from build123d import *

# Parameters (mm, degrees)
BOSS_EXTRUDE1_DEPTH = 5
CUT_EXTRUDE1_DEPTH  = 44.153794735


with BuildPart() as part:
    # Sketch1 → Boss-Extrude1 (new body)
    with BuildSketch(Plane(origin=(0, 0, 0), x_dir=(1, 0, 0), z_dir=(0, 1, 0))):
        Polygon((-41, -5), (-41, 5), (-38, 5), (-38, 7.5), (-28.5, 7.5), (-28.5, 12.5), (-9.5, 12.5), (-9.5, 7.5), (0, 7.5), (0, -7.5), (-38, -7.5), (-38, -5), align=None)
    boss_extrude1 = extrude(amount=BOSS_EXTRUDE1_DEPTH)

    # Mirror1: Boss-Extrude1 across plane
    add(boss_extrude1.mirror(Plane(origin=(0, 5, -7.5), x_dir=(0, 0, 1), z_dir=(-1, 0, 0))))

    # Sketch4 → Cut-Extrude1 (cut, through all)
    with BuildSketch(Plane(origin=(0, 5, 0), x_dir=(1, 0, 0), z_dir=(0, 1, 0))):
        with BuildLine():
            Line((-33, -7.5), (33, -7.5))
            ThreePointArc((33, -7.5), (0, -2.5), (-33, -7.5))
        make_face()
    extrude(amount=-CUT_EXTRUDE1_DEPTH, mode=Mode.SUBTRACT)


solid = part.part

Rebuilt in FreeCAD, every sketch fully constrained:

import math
import FreeCAD as App
import Part
import Sketcher

V = App.Vector
Q = App.Units.Quantity

doc = App.newDocument("Part")
params = doc.addObject("Spreadsheet::Sheet", "Params")
for row, (alias, value) in enumerate([
    ("sketch1_width", "3 mm"),
    ("sketch1_width2", "38 mm"),
    ("sketch1_width3", "19 mm"),
    ("sketch1_height", "10 mm"),
    ("sketch1_height2", "15 mm"),
    ("pad1_length", "5 mm"),
    ("sketch2_radius", "111.4 mm"),
    ("sketch2_width", "66 mm"),
], start=1):
    params.set(f"A{row}", alias)
    params.set(f"B{row}", "=" + value)
    params.setAlias(f"B{row}", alias)

body = doc.addObject("PartDesign::Body", "Body")

sketch1 = body.newObject("Sketcher::SketchObject", "Sketch")
sketch1.AttachmentSupport = (doc.getObject("XZ_Plane"), [""])
sketch1.MapMode = "FlatFace"
sketch1.addGeometry([
    Part.LineSegment(V(-41, -5, 0), V(-41, 5, 0)),
    Part.LineSegment(V(-41, 5, 0), V(-38, 5, 0)),
    Part.LineSegment(V(-38, 5, 0), V(-38, 7.5, 0)),
    Part.LineSegment(V(-38, 7.5, 0), V(0, 7.5, 0)),
    Part.LineSegment(V(0, 7.5, 0), V(0, -7.5, 0)),
    Part.LineSegment(V(0, -7.5, 0), V(-9.5, -7.5, 0)),
    Part.LineSegment(V(-9.5, -7.5, 0), V(-9.5, -12.5, 0)),
    Part.LineSegment(V(-9.5, -12.5, 0), V(-28.5, -12.5, 0)),
    Part.LineSegment(V(-28.5, -12.5, 0), V(-28.5, -7.5, 0)),
    Part.LineSegment(V(-28.5, -7.5, 0), V(-38, -7.5, 0)),
    Part.LineSegment(V(-38, -7.5, 0), V(-38, -5, 0)),
    Part.LineSegment(V(-38, -5, 0), V(-41, -5, 0)),
], False)
sketch1.addConstraint([
    Sketcher.Constraint("Coincident", 0, 2, 1, 1),
    Sketcher.Constraint("Coincident", 1, 2, 2, 1),
    Sketcher.Constraint("Coincident", 2, 2, 3, 1),
    Sketcher.Constraint("Coincident", 3, 2, 4, 1),
    Sketcher.Constraint("Coincident", 4, 2, 5, 1),
    Sketcher.Constraint("Coincident", 5, 2, 6, 1),
    Sketcher.Constraint("Coincident", 6, 2, 7, 1),
    Sketcher.Constraint("Coincident", 7, 2, 8, 1),
    Sketcher.Constraint("Coincident", 8, 2, 9, 1),
    Sketcher.Constraint("Coincident", 9, 2, 10, 1),
    Sketcher.Constraint("Coincident", 10, 2, 11, 1),
    Sketcher.Constraint("Coincident", 11, 2, 0, 1),
    Sketcher.Constraint("Vertical", 0),
    Sketcher.Constraint("Horizontal", 1),
    Sketcher.Constraint("Vertical", 2),
    Sketcher.Constraint("Horizontal", 3),
    Sketcher.Constraint("Vertical", 4),
    Sketcher.Constraint("Horizontal", 5),
    Sketcher.Constraint("Vertical", 6),
    Sketcher.Constraint("Horizontal", 7),
    Sketcher.Constraint("Vertical", 8),
    Sketcher.Constraint("Horizontal", 9),
    Sketcher.Constraint("Vertical", 10),
    Sketcher.Constraint("Horizontal", 11),
    Sketcher.Constraint("Symmetric", 3, 2, 4, 2, -1, 1),
    Sketcher.Constraint("Symmetric", 2, 2, 9, 2, -1),
    Sketcher.Constraint("Equal", 5, 9),
    Sketcher.Constraint("Equal", 2, 10),
    Sketcher.Constraint("DistanceX", 1, 1, 1, 2, Q("3 mm")),
    Sketcher.Constraint("DistanceX", 3, 1, 3, 2, Q("38 mm")),
    Sketcher.Constraint("DistanceX", 7, 2, 7, 1, Q("19 mm")),
    Sketcher.Constraint("DistanceY", 0, 1, 0, 2, Q("10 mm")),
    Sketcher.Constraint("DistanceY", 4, 2, 4, 1, Q("15 mm")),
    Sketcher.Constraint("DistanceY", 6, 2, 6, 1, Q("5 mm")),
])
sketch1.setExpression("Constraints[28]", "Params.sketch1_width")
sketch1.setExpression("Constraints[29]", "Params.sketch1_width2")
sketch1.setExpression("Constraints[30]", "Params.sketch1_width3")
sketch1.setExpression("Constraints[31]", "Params.sketch1_height")
sketch1.setExpression("Constraints[32]", "Params.sketch1_height2")
pad1 = body.newObject("PartDesign::Pad", "Pad")
pad1.Profile = sketch1
pad1.setExpression("Length", "Params.pad1_length")
pad1.Reversed = True
doc.recompute()

mirrored = body.newObject("PartDesign::Mirrored", "Mirrored")
mirrored.Originals = [pad1]
mirrored.MirrorPlane = (doc.getObject("YZ_Plane"), [""])
body.Tip = mirrored

sketch2 = body.newObject("Sketcher::SketchObject", "Sketch001")
sketch2.AttachmentSupport = (doc.getObject("XZ_Plane"), [""])
sketch2.MapMode = "FlatFace"
sketch2.AttachmentOffset = App.Placement(V(0, 0, -5), App.Rotation())
sketch2.addGeometry([
    Part.LineSegment(V(-33, 8, 0), V(33, 8, 0)),
    Part.ArcOfCircle(Part.Circle(V(0, 114, 0), V(0, 0, 1), 111), math.radians(-107), math.radians(-73)),
], False)
sketch2.addConstraint([
    Sketcher.Constraint("Coincident", 0, 1, 1, 1),
    Sketcher.Constraint("Coincident", 1, 2, 0, 2),
    Sketcher.Constraint("Horizontal", 0),
    Sketcher.Constraint("PointOnObject", 1, 3, -2),
    Sketcher.Constraint("Radius", 1, Q("111.4 mm")),
    Sketcher.Constraint("DistanceX", 0, 1, 0, 2, Q("66 mm")),
    Sketcher.Constraint("DistanceY", -1, 1, 1, 3, Q("113.9 mm")),
])
sketch2.setExpression("Constraints[4]", "Params.sketch2_radius")
sketch2.setExpression("Constraints[5]", "Params.sketch2_width")
pocket1 = body.newObject("PartDesign::Pocket", "Pocket")
pocket1.Profile = sketch2
pocket1.Type = "ThroughAll"
pocket1.Reversed = True

doc.recompute()
